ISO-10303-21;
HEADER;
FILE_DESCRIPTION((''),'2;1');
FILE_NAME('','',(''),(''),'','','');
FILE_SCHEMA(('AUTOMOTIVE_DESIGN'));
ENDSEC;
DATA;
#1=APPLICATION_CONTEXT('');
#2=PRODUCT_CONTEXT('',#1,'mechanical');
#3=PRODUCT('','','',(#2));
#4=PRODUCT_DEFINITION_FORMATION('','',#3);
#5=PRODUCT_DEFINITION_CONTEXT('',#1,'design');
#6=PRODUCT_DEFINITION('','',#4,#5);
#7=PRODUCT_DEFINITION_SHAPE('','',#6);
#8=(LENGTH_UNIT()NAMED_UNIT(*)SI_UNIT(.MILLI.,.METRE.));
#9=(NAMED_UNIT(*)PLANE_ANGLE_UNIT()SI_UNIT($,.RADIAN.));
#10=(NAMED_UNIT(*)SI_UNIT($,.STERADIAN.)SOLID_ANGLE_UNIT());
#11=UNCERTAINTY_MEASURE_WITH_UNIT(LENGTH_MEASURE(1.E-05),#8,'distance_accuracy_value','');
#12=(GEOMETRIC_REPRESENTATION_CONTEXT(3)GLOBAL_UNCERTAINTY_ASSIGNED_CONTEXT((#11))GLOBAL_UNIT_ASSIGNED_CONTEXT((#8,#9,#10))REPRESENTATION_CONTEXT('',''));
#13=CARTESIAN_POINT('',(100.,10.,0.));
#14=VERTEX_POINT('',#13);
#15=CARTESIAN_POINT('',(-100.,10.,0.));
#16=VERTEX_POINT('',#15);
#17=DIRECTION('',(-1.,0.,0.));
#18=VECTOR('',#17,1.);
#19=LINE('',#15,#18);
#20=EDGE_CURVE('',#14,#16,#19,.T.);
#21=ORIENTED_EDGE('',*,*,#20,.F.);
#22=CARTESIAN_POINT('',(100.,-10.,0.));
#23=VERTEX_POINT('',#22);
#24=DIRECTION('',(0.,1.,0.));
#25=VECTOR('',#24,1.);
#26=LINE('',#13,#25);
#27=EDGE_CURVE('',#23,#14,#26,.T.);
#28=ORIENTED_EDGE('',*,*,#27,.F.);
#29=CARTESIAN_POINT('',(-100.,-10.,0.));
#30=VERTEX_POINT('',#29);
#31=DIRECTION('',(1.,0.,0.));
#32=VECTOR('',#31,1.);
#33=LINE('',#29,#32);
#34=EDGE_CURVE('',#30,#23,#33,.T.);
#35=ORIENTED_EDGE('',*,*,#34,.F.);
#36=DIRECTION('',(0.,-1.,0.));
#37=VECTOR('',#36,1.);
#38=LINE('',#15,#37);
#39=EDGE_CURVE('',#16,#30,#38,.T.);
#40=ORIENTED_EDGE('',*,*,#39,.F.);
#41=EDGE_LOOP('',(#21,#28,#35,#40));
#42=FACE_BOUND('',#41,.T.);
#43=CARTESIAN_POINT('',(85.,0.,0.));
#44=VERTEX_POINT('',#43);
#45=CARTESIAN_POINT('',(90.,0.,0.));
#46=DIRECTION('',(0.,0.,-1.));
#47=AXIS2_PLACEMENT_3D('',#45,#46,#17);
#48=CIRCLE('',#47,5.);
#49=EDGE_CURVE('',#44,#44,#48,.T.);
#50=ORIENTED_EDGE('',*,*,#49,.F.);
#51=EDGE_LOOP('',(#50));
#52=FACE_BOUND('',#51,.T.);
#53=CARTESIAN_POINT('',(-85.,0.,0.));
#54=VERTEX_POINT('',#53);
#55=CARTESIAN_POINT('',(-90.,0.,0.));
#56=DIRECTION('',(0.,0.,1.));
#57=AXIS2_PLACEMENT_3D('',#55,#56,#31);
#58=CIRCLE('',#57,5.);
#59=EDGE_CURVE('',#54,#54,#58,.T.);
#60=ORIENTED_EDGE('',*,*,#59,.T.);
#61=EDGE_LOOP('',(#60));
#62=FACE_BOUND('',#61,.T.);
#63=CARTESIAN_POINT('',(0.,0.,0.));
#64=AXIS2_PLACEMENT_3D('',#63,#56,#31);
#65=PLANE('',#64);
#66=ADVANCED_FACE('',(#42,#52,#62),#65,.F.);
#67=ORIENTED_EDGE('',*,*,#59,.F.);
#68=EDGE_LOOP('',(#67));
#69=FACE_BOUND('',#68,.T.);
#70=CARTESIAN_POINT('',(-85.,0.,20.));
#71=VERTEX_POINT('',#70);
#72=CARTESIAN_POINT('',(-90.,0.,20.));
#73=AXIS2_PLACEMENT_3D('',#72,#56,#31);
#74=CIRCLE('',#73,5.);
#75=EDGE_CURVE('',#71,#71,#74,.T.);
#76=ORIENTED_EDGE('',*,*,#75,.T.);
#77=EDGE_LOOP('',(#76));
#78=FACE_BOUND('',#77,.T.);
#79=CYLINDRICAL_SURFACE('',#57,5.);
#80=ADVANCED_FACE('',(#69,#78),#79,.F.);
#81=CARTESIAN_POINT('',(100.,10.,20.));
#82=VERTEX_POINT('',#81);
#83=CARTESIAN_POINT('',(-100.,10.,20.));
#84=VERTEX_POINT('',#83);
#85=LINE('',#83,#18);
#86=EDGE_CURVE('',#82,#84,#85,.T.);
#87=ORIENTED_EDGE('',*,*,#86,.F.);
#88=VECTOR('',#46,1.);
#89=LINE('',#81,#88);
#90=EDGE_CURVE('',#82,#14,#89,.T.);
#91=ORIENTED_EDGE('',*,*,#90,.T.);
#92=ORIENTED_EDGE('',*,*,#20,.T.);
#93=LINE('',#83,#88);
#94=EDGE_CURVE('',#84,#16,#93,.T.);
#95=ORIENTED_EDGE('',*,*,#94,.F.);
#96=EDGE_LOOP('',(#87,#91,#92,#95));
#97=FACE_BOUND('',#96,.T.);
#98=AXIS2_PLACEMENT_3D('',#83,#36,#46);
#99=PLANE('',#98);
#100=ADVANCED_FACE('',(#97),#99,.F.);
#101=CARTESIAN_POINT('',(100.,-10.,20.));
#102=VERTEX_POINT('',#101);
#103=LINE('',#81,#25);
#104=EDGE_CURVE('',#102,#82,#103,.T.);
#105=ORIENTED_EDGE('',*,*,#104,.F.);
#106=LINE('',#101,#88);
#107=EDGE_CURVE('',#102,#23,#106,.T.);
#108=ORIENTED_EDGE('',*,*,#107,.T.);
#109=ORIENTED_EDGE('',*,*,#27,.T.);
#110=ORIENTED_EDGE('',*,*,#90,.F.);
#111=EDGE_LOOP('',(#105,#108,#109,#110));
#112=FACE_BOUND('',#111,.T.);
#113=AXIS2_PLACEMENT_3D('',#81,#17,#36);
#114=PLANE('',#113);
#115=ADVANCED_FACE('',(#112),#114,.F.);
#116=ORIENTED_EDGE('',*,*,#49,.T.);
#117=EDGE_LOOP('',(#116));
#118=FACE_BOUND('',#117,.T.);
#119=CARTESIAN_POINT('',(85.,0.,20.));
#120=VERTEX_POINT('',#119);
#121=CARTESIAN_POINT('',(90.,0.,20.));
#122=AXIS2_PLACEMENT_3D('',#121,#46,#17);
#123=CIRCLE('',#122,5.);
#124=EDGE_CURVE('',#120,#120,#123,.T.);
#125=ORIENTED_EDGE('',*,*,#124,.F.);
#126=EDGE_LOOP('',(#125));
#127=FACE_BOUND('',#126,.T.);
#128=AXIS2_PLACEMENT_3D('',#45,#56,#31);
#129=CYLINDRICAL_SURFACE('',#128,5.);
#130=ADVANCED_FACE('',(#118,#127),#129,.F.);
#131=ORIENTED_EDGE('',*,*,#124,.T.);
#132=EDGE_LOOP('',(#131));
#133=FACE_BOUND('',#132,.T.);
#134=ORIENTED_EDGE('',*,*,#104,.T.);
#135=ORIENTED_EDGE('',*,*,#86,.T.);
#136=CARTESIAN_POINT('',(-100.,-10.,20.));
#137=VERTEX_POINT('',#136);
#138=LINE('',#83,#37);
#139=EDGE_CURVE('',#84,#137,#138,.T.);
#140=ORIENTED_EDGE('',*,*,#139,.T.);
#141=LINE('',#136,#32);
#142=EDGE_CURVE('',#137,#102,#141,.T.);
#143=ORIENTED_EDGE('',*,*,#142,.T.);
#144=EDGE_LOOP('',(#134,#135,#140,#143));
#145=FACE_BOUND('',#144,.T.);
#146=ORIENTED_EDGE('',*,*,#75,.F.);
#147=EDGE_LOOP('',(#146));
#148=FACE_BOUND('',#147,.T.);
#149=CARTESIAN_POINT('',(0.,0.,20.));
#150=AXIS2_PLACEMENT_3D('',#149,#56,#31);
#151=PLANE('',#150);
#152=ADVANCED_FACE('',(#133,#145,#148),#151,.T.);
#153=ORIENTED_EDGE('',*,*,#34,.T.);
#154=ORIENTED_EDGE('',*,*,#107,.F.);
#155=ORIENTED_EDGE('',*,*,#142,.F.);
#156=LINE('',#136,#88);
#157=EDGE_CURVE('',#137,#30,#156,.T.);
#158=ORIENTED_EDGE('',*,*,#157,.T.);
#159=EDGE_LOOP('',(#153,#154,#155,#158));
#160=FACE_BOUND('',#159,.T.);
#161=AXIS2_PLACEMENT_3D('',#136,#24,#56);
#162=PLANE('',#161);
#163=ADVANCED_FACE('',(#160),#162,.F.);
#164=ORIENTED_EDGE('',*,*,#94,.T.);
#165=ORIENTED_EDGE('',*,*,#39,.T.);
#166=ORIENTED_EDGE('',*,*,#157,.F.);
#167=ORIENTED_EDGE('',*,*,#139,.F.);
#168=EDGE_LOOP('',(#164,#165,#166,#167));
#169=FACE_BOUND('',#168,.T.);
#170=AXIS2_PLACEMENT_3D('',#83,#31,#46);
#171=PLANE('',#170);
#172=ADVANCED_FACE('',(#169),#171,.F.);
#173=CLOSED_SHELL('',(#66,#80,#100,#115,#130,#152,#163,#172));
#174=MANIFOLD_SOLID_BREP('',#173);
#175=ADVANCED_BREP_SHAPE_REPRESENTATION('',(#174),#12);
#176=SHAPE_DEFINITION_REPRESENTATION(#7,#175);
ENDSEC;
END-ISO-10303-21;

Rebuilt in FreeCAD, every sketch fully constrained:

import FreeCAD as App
import Part
import Sketcher

V = App.Vector

doc = App.newDocument("Part")
body = doc.addObject("PartDesign::Body", "Body")

sketch1 = doc.addObject("Sketcher::SketchObject", "Sketch")
body.addObject(sketch1)
sketch1.AttachmentSupport = (doc.XY_Plane, [""])
sketch1.MapMode = "FlatFace"
sketch1.addGeometry([
    Part.LineSegment(V(-100, 10, 0), V(-100, -10, 0)),
    Part.LineSegment(V(-100, -10, 0), V(100, -10, 0)),
    Part.LineSegment(V(100, -10, 0), V(100, 10, 0)),
    Part.LineSegment(V(100, 10, 0), V(-100, 10, 0)),
], False)
sketch1.addConstraint([
    Sketcher.Constraint("Coincident", 0, 2, 1, 1),
    Sketcher.Constraint("Coincident", 1, 2, 2, 1),
    Sketcher.Constraint("Coincident", 2, 2, 3, 1),
    Sketcher.Constraint("Coincident", 3, 2, 0, 1),
    Sketcher.Constraint("Vertical", 0),
    Sketcher.Constraint("Horizontal", 1),
    Sketcher.Constraint("Vertical", 2),
    Sketcher.Constraint("Horizontal", 3),
    Sketcher.Constraint("Symmetric", 0, 2, 2, 2, -1, 1),
    Sketcher.Constraint("DistanceX", 1, 1, 1, 2, 200.0),
    Sketcher.Constraint("DistanceY", 0, 2, 0, 1, 20.0),
])
pad1 = doc.addObject("PartDesign::Pad", "Pad")
body.addObject(pad1)
pad1.Profile = sketch1
pad1.Length = 20

sketch2 = doc.addObject("Sketcher::SketchObject", "Sketch001")
body.addObject(sketch2)
sketch2.AttachmentSupport = (doc.XY_Plane, [""])
sketch2.MapMode = "FlatFace"
sketch2.AttachmentOffset = App.Placement(V(0, 0, 20), App.Rotation())
sketch2.addGeometry(Part.Circle(V(-90, 0, 0), V(0, 0, 1), 5), False)
sketch2.addConstraint([
    Sketcher.Constraint("PointOnObject", 0, 3, -1),
    Sketcher.Constraint("Diameter", 0, 10.0),
    Sketcher.Constraint("DistanceX", 0, 3, -1, 1, 90.0),
])
pocket1 = doc.addObject("PartDesign::Pocket", "Pocket")
body.addObject(pocket1)
pocket1.Profile = sketch2
pocket1.Type = "ThroughAll"
doc.recompute()

mirrored = doc.addObject("PartDesign::Mirrored", "Mirrored")
body.addObject(mirrored)
mirrored.Originals = [pocket1]
mirrored.MirrorPlane = (doc.YZ_Plane, [""])
body.Tip = mirrored

doc.recompute()
